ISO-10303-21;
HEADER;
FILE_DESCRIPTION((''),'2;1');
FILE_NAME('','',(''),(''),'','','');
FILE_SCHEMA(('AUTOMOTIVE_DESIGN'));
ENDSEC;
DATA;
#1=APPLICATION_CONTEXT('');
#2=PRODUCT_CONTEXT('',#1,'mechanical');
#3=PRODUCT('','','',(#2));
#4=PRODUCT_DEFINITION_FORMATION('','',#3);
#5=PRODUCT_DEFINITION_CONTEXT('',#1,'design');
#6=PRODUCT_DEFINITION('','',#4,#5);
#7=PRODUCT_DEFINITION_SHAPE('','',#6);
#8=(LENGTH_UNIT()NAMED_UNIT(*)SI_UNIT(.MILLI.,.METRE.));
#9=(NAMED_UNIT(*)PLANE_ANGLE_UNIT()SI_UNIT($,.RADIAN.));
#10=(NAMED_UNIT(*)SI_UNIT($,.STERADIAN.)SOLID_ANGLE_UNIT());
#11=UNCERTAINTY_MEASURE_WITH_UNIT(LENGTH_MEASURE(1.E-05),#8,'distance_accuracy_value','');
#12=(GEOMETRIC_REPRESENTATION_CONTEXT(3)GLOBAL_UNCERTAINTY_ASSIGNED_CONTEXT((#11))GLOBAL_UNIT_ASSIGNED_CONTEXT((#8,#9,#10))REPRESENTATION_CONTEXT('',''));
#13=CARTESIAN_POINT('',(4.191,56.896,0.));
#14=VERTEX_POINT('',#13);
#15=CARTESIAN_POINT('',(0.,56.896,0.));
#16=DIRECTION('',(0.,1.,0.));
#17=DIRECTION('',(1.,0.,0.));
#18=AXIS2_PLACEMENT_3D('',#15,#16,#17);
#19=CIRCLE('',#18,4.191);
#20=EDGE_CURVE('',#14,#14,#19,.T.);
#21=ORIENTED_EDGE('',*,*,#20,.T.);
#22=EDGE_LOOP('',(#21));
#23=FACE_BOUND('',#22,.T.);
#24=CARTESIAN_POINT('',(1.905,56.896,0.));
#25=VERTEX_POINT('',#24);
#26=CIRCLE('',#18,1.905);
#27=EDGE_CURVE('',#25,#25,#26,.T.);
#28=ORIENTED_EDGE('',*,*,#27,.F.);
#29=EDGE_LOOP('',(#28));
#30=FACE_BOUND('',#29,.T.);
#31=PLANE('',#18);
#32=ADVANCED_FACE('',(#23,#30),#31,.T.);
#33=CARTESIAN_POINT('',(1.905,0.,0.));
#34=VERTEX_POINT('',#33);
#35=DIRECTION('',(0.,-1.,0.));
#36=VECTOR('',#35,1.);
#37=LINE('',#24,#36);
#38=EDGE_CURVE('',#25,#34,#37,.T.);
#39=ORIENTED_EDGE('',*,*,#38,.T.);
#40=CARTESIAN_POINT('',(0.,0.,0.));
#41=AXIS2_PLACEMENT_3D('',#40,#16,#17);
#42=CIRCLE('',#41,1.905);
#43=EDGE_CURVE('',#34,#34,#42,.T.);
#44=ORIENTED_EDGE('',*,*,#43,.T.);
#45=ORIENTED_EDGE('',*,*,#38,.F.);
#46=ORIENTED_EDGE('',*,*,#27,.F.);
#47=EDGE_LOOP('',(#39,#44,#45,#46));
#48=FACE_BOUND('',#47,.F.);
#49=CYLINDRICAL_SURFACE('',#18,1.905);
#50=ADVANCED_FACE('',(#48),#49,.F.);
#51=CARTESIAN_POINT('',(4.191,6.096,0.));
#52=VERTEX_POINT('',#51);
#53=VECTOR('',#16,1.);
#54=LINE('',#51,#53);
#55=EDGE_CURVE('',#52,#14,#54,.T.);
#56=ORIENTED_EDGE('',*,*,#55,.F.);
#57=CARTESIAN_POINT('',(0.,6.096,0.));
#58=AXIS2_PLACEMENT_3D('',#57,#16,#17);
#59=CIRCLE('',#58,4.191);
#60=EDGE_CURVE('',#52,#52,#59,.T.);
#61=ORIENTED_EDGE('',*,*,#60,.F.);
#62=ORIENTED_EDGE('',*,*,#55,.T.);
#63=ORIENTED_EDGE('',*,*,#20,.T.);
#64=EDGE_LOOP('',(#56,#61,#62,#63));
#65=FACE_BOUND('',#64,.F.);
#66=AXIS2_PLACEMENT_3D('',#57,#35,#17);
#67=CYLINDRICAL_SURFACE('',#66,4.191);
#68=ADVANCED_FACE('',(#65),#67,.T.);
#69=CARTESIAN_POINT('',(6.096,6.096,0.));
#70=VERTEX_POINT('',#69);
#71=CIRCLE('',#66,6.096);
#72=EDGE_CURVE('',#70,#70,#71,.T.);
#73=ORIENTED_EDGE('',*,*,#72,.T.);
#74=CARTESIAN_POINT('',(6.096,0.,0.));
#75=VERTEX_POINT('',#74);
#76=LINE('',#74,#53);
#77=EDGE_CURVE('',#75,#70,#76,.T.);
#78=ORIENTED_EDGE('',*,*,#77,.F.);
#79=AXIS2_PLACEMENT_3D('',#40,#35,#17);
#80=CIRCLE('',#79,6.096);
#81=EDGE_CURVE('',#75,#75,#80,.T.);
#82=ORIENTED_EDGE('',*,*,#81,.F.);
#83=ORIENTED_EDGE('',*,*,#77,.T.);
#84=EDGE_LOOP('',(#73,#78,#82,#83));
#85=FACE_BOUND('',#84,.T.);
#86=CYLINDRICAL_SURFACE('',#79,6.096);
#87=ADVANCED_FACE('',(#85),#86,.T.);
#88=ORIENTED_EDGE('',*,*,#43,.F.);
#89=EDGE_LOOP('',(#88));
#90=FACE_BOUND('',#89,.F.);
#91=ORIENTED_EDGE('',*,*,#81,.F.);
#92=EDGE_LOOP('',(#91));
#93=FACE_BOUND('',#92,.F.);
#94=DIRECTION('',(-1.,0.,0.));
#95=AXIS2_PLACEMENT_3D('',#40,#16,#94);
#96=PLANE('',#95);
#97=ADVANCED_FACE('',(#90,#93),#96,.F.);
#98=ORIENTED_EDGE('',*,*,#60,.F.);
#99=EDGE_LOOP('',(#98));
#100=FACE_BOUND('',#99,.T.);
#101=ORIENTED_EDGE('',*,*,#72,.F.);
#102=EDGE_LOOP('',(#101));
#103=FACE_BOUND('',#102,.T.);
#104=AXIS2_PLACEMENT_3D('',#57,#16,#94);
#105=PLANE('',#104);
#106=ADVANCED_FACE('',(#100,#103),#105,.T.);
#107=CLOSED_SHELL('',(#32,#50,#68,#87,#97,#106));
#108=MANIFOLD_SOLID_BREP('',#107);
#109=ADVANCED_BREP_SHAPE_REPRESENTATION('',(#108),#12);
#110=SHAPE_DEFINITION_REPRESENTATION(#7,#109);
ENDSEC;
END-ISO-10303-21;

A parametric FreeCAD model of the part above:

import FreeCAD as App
import Part
import Sketcher
from FreeCAD import Vector
Q = App.Units.Quantity

doc = App.newDocument("Part")
body = doc.addObject("PartDesign::Body", "Body")

sketch1 = body.newObject("Sketcher::SketchObject", "Sketch")
sketch1.AttachmentSupport = (doc.getObject("XZ_Plane"), [""])
sketch1.MapMode = "FlatFace"
sketch1.addGeometry(Part.Circle(Vector(0, 0, 0), Vector(0, 0, 1), 7.366), False)
sketch1.addConstraint([
    Sketcher.Constraint("Coincident", 0, 3, -1, 1),
    Sketcher.Constraint("Diameter", 0, Q("0.58 in")),
])
pad1 = body.newObject("PartDesign::Pad", "Pad")
pad1.Profile = sketch1
pad1.Length = Q("0.24 in")
pad1.Reversed = True

sketch2 = body.newObject("Sketcher::SketchObject", "Sketch001")
sketch2.AttachmentSupport = (doc.getObject("XZ_Plane"), [""])
sketch2.MapMode = "FlatFace"
sketch2.AttachmentOffset = App.Placement(Vector(0, 0, -0.24 * 25.4), App.Rotation())
sketch2.addGeometry(Part.Circle(Vector(0, 0, 0), Vector(0, 0, 1), 4.191), False)
sketch2.addConstraint([
    Sketcher.Constraint("Coincident", 0, 3, -1, 1),
    Sketcher.Constraint("Diameter", 0, Q("0.33 in")),
])
pad2 = body.newObject("PartDesign::Pad", "Pad001")
pad2.Profile = sketch2
pad2.Length = Q("2 in")
pad2.Reversed = True

sketch3 = body.newObject("Sketcher::SketchObject", "Sketch002")
sketch3.AttachmentSupport = (doc.getObject("XZ_Plane"), [""])
sketch3.MapMode = "FlatFace"
sketch3.addGeometry([
    Part.Circle(Vector(0, 0, 0), Vector(0, 0, 1), 7.366),
    Part.Circle(Vector(0, 0, 0), Vector(0, 0, 1), 6.096),
], False)
sketch3.addConstraint([
    Sketcher.Constraint("Coincident", 0, 3, -1, 1),
    Sketcher.Constraint("Coincident", 1, 3, -1, 1),
    Sketcher.Constraint("Diameter", 1, Q("0.48 in")),
    Sketcher.Constraint("Diameter", 0, Q("0.58 in")),
])
pocket1 = body.newObject("PartDesign::Pocket", "Pocket")
pocket1.Profile = sketch3
pocket1.Type = "ThroughAll"

sketch4 = body.newObject("Sketcher::SketchObject", "Sketch003")
sketch4.AttachmentSupport = (doc.getObject("XZ_Plane"), [""])
sketch4.MapMode = "FlatFace"
sketch4.AttachmentOffset = App.Placement(Vector(0, 0, -2.24 * 25.4), App.Rotation())
sketch4.addGeometry(Part.Circle(Vector(0, 0, 0), Vector(0, 0, 1), 1.905), False)
sketch4.addConstraint([
    Sketcher.Constraint("Coincident", 0, 3, -1, 1),
    Sketcher.Constraint("Diameter", 0, Q("0.15 in")),
])
pocket2 = body.newObject("PartDesign::Pocket", "Pocket001")
pocket2.Profile = sketch4
pocket2.Type = "ThroughAll"
pocket2.Reversed = True

doc.recompute()
